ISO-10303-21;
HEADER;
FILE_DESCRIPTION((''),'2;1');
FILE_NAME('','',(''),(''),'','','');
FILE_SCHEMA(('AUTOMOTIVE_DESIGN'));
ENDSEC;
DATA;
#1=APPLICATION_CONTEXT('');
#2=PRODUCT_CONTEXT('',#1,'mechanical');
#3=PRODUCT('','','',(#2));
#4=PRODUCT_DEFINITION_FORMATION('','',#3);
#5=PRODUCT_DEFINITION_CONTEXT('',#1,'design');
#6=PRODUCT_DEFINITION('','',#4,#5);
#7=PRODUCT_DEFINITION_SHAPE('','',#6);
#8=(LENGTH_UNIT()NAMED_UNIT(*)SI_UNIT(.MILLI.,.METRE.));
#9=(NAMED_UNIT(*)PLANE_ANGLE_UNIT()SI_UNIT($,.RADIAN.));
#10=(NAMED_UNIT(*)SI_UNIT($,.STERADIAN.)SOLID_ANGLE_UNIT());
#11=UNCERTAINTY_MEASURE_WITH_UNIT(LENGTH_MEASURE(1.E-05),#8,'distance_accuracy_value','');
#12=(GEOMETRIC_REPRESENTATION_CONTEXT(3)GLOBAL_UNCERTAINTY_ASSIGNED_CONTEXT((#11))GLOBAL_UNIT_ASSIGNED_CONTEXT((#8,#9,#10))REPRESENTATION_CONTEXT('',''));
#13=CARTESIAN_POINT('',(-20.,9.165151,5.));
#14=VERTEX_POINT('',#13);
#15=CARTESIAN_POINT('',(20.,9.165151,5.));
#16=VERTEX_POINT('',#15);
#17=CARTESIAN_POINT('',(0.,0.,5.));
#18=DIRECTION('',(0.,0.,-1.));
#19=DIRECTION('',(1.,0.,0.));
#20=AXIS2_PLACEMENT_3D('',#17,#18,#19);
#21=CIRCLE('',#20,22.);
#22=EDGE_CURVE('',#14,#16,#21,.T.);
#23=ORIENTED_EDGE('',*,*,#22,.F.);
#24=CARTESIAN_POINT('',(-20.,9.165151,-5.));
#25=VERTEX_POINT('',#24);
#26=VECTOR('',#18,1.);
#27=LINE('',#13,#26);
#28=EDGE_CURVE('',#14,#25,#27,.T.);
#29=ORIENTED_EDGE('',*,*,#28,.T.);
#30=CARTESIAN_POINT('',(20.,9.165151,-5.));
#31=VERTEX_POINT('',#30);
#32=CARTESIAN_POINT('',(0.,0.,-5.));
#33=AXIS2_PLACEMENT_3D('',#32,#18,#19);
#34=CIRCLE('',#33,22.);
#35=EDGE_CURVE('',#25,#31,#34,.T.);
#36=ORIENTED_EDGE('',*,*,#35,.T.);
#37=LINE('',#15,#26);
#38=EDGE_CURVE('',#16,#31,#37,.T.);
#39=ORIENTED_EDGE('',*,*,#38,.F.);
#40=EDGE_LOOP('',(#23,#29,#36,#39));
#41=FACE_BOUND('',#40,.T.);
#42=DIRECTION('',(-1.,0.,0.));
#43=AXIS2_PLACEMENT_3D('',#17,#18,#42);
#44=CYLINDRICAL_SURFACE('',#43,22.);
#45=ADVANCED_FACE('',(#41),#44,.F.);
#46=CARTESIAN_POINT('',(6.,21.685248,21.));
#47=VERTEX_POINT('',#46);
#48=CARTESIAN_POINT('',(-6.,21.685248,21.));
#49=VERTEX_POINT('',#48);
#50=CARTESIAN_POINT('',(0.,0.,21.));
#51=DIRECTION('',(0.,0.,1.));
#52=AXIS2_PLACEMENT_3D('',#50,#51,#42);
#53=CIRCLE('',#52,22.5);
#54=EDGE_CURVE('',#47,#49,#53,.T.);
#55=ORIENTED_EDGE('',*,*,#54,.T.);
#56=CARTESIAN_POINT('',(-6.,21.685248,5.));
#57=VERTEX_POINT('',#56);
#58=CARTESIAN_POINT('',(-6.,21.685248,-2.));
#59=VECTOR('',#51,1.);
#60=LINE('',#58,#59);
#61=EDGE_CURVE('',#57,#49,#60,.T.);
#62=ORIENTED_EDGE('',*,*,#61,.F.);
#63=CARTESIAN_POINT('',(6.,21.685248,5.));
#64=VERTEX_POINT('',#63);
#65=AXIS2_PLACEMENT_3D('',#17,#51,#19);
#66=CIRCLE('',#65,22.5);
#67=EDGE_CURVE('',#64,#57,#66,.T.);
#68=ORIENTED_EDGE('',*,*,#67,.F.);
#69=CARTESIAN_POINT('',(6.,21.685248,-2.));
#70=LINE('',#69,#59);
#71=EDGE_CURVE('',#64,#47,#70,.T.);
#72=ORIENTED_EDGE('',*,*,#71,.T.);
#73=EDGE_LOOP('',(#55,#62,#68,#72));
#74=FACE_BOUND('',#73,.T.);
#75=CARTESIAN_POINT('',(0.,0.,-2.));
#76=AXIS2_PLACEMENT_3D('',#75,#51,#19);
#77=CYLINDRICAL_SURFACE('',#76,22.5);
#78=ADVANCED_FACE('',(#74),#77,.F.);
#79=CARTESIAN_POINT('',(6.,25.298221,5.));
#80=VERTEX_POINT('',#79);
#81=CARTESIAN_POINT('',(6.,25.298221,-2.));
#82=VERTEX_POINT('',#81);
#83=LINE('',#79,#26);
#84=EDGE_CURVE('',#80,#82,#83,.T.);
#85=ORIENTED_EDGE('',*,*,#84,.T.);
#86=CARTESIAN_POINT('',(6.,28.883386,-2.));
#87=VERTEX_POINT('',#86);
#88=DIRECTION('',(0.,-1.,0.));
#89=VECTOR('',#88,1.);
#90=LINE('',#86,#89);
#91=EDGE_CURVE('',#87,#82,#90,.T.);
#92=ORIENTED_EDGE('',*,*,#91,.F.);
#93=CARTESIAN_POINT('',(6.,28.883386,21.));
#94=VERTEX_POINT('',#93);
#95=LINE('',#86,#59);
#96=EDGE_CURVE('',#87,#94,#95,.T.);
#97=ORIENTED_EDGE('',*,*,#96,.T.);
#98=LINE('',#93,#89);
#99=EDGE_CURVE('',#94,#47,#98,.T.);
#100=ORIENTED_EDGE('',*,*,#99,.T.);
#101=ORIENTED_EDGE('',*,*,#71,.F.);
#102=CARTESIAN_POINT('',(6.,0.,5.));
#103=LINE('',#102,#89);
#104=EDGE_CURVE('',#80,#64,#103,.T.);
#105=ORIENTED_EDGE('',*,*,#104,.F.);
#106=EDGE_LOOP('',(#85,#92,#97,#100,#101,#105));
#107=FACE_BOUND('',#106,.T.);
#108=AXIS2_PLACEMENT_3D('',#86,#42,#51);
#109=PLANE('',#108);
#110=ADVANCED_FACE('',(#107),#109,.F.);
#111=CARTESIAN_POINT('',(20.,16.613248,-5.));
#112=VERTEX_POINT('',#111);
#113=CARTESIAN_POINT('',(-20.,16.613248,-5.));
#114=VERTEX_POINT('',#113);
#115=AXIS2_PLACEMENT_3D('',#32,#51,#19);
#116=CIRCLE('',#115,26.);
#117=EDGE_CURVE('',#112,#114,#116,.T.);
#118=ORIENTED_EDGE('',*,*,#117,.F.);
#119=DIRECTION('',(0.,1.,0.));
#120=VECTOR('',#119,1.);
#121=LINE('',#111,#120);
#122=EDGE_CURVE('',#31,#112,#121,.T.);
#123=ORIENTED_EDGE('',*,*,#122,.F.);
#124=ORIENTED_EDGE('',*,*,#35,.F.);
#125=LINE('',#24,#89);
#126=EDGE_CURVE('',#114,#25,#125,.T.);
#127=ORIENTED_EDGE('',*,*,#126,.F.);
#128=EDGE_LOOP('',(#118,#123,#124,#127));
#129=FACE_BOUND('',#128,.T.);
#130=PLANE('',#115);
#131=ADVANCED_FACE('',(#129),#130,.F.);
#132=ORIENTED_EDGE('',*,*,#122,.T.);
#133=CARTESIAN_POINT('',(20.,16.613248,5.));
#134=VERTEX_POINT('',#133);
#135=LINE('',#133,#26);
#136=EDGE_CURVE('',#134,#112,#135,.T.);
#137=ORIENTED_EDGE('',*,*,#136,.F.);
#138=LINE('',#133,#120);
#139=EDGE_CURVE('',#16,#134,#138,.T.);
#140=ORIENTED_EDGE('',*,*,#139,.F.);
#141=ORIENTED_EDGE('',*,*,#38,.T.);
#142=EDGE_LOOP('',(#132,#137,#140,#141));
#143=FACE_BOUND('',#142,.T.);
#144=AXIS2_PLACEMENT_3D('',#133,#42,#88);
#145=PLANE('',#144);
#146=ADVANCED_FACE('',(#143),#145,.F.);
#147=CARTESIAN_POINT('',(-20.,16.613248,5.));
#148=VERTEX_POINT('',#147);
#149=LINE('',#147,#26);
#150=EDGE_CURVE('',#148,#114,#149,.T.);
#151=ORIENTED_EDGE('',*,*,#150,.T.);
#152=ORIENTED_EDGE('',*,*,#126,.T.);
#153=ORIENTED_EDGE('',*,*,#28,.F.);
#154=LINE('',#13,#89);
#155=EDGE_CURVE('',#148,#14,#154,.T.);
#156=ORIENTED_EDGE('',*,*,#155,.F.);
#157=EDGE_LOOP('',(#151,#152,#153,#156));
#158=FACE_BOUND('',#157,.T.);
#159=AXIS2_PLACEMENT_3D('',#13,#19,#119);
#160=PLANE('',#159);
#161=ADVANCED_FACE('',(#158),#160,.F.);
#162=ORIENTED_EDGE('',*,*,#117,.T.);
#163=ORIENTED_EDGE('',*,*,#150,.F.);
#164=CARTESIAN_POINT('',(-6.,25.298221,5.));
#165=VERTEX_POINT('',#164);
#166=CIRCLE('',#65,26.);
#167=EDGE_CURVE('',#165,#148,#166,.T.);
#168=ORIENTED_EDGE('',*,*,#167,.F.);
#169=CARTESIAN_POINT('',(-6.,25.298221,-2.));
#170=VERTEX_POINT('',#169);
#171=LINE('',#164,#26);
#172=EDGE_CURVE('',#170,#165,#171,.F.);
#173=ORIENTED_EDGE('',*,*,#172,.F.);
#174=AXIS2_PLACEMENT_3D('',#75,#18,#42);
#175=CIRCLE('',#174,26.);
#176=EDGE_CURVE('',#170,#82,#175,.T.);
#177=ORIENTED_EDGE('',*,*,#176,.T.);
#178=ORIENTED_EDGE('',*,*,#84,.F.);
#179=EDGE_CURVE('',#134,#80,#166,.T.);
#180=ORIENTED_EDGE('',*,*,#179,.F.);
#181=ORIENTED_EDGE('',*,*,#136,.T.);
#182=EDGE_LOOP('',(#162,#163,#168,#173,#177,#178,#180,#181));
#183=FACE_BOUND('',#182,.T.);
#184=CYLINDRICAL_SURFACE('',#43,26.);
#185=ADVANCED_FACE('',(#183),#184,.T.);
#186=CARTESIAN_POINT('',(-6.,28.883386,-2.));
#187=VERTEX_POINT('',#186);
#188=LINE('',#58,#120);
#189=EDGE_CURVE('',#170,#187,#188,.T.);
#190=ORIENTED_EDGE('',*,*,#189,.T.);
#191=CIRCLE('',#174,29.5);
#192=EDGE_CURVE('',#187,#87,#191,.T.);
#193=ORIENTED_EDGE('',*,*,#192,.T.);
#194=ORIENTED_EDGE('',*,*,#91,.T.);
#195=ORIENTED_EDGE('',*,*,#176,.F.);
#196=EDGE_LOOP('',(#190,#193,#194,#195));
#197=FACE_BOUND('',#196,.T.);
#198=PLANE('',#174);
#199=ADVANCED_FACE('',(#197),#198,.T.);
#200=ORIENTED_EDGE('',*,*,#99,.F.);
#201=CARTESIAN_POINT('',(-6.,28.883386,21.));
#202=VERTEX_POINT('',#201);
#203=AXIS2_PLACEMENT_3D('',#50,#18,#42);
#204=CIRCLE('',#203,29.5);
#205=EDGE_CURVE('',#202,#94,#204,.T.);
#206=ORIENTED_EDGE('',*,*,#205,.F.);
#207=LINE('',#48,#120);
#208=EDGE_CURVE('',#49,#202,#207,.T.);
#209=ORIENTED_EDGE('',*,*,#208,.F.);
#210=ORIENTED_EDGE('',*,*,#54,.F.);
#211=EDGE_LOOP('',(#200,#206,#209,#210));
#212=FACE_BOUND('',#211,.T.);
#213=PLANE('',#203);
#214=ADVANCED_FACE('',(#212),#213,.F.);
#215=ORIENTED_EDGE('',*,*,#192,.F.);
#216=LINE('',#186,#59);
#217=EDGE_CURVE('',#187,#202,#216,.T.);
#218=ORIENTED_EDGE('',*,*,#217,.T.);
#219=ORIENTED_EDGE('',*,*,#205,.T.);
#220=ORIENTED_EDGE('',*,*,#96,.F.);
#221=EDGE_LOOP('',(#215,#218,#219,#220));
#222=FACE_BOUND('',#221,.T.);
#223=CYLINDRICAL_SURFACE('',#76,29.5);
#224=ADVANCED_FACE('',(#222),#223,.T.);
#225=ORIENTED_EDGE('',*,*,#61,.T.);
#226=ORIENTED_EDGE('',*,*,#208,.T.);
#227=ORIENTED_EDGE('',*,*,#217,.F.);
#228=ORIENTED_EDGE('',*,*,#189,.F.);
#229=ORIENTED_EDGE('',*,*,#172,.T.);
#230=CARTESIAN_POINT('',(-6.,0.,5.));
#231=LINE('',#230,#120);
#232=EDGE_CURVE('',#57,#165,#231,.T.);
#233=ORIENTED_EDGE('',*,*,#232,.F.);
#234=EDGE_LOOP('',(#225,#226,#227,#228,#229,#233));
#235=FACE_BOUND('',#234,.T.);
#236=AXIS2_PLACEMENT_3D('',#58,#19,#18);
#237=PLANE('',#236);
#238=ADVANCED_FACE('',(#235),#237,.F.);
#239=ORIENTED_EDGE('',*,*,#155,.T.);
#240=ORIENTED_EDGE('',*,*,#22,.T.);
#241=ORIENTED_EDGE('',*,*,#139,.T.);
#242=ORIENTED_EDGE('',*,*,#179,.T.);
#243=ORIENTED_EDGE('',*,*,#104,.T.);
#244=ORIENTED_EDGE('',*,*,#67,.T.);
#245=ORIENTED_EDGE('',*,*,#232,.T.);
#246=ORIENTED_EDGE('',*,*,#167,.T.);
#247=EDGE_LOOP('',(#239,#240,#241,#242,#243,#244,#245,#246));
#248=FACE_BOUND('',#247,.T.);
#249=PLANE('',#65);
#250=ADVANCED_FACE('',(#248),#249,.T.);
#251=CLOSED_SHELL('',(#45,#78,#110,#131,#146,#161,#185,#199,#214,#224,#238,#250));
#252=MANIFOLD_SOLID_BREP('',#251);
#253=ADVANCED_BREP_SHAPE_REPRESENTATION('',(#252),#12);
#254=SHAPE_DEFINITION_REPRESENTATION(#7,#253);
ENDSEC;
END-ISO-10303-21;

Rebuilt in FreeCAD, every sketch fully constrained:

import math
import FreeCAD as App
import Part
import Sketcher
Q = App.Units.Quantity

doc = App.newDocument("Part")
body = doc.addObject("PartDesign::Body", "Body")

# Sketch on XY plane
sketch1 = doc.addObject("Sketcher::SketchObject", "Sketch")
body.addObject(sketch1)
sketch1.AttachmentSupport = (doc.XY_Plane, [""])
sketch1.MapMode = "FlatFace"
sketch1.addGeometry([
    Part.LineSegment(App.Vector(-20, 17, 0), App.Vector(-20, 9, 0)),
    Part.ArcOfCircle(Part.Circle(App.Vector(0, 0, 0), App.Vector(0, 0, 1), 22), math.radians(25), math.radians(155)),
    Part.LineSegment(App.Vector(20, 9, 0), App.Vector(20, 17, 0)),
    Part.ArcOfCircle(Part.Circle(App.Vector(0, 0, 0), App.Vector(0, 0, 1), 26), math.radians(40), math.radians(140)),
], False)
sketch1.addConstraint([
    Sketcher.Constraint("Coincident", 0, 2, 1, 2),
    Sketcher.Constraint("Coincident", 1, 1, 2, 1),
    Sketcher.Constraint("Coincident", 2, 2, 3, 1),
    Sketcher.Constraint("Coincident", 3, 2, 0, 1),
    Sketcher.Constraint("Vertical", 0),
    Sketcher.Constraint("Vertical", 2),
    Sketcher.Constraint("Coincident", 1, 3, -1, 1),
    Sketcher.Constraint("Coincident", 3, 3, -1, 1),
    Sketcher.Constraint("Horizontal", 0, 2, 1, 1),
    Sketcher.Constraint("Radius", 1, Q("22 mm")),
    Sketcher.Constraint("Radius", 3, Q("26 mm")),
    Sketcher.Constraint("DistanceX", 0, 2, -1, 1, Q("20 mm")),
])
pad1 = doc.addObject("PartDesign::Pad", "Pad")
body.addObject(pad1)
pad1.Profile = sketch1
pad1.Length = 10
pad1.Midplane = True

# Sketch on XY plane
sketch2 = doc.addObject("Sketcher::SketchObject", "Sketch001")
body.addObject(sketch2)
sketch2.AttachmentSupport = (doc.XY_Plane, [""])
sketch2.MapMode = "FlatFace"
sketch2.AttachmentOffset = App.Placement(App.Vector(0, 0, 5), App.Rotation())
sketch2.addGeometry([
    Part.LineSegment(App.Vector(-6, 22, 0), App.Vector(-6, 29, 0)),
    Part.ArcOfCircle(Part.Circle(App.Vector(0, 0, 0), App.Vector(0, 0, 1), 29), math.radians(78), math.radians(102)),
    Part.LineSegment(App.Vector(6, 29, 0), App.Vector(6, 22, 0)),
    Part.ArcOfCircle(Part.Circle(App.Vector(0, 0, 0), App.Vector(0, 0, 1), 22), math.radians(75), math.radians(105)),
], False)
sketch2.addConstraint([
    Sketcher.Constraint("Coincident", 0, 2, 1, 2),
    Sketcher.Constraint("Coincident", 1, 1, 2, 1),
    Sketcher.Constraint("Coincident", 2, 2, 3, 1),
    Sketcher.Constraint("Coincident", 3, 2, 0, 1),
    Sketcher.Constraint("Vertical", 0),
    Sketcher.Constraint("Vertical", 2),
    Sketcher.Constraint("Coincident", 1, 3, -1, 1),
    Sketcher.Constraint("Coincident", 3, 3, -1, 1),
    Sketcher.Constraint("Horizontal", 0, 2, 1, 1),
    Sketcher.Constraint("Radius", 1, Q("29.5 mm")),
    Sketcher.Constraint("Radius", 3, Q("22.5 mm")),
    Sketcher.Constraint("DistanceX", 0, 2, -1, 1, Q("6 mm")),
])
pad2 = doc.addObject("PartDesign::Pad", "Pad001")
body.addObject(pad2)
pad2.Profile = sketch2
pad2.Type = "TwoLengths"
pad2.Length = 7
pad2.Length2 = 16
pad2.Reversed = True

doc.recompute()
